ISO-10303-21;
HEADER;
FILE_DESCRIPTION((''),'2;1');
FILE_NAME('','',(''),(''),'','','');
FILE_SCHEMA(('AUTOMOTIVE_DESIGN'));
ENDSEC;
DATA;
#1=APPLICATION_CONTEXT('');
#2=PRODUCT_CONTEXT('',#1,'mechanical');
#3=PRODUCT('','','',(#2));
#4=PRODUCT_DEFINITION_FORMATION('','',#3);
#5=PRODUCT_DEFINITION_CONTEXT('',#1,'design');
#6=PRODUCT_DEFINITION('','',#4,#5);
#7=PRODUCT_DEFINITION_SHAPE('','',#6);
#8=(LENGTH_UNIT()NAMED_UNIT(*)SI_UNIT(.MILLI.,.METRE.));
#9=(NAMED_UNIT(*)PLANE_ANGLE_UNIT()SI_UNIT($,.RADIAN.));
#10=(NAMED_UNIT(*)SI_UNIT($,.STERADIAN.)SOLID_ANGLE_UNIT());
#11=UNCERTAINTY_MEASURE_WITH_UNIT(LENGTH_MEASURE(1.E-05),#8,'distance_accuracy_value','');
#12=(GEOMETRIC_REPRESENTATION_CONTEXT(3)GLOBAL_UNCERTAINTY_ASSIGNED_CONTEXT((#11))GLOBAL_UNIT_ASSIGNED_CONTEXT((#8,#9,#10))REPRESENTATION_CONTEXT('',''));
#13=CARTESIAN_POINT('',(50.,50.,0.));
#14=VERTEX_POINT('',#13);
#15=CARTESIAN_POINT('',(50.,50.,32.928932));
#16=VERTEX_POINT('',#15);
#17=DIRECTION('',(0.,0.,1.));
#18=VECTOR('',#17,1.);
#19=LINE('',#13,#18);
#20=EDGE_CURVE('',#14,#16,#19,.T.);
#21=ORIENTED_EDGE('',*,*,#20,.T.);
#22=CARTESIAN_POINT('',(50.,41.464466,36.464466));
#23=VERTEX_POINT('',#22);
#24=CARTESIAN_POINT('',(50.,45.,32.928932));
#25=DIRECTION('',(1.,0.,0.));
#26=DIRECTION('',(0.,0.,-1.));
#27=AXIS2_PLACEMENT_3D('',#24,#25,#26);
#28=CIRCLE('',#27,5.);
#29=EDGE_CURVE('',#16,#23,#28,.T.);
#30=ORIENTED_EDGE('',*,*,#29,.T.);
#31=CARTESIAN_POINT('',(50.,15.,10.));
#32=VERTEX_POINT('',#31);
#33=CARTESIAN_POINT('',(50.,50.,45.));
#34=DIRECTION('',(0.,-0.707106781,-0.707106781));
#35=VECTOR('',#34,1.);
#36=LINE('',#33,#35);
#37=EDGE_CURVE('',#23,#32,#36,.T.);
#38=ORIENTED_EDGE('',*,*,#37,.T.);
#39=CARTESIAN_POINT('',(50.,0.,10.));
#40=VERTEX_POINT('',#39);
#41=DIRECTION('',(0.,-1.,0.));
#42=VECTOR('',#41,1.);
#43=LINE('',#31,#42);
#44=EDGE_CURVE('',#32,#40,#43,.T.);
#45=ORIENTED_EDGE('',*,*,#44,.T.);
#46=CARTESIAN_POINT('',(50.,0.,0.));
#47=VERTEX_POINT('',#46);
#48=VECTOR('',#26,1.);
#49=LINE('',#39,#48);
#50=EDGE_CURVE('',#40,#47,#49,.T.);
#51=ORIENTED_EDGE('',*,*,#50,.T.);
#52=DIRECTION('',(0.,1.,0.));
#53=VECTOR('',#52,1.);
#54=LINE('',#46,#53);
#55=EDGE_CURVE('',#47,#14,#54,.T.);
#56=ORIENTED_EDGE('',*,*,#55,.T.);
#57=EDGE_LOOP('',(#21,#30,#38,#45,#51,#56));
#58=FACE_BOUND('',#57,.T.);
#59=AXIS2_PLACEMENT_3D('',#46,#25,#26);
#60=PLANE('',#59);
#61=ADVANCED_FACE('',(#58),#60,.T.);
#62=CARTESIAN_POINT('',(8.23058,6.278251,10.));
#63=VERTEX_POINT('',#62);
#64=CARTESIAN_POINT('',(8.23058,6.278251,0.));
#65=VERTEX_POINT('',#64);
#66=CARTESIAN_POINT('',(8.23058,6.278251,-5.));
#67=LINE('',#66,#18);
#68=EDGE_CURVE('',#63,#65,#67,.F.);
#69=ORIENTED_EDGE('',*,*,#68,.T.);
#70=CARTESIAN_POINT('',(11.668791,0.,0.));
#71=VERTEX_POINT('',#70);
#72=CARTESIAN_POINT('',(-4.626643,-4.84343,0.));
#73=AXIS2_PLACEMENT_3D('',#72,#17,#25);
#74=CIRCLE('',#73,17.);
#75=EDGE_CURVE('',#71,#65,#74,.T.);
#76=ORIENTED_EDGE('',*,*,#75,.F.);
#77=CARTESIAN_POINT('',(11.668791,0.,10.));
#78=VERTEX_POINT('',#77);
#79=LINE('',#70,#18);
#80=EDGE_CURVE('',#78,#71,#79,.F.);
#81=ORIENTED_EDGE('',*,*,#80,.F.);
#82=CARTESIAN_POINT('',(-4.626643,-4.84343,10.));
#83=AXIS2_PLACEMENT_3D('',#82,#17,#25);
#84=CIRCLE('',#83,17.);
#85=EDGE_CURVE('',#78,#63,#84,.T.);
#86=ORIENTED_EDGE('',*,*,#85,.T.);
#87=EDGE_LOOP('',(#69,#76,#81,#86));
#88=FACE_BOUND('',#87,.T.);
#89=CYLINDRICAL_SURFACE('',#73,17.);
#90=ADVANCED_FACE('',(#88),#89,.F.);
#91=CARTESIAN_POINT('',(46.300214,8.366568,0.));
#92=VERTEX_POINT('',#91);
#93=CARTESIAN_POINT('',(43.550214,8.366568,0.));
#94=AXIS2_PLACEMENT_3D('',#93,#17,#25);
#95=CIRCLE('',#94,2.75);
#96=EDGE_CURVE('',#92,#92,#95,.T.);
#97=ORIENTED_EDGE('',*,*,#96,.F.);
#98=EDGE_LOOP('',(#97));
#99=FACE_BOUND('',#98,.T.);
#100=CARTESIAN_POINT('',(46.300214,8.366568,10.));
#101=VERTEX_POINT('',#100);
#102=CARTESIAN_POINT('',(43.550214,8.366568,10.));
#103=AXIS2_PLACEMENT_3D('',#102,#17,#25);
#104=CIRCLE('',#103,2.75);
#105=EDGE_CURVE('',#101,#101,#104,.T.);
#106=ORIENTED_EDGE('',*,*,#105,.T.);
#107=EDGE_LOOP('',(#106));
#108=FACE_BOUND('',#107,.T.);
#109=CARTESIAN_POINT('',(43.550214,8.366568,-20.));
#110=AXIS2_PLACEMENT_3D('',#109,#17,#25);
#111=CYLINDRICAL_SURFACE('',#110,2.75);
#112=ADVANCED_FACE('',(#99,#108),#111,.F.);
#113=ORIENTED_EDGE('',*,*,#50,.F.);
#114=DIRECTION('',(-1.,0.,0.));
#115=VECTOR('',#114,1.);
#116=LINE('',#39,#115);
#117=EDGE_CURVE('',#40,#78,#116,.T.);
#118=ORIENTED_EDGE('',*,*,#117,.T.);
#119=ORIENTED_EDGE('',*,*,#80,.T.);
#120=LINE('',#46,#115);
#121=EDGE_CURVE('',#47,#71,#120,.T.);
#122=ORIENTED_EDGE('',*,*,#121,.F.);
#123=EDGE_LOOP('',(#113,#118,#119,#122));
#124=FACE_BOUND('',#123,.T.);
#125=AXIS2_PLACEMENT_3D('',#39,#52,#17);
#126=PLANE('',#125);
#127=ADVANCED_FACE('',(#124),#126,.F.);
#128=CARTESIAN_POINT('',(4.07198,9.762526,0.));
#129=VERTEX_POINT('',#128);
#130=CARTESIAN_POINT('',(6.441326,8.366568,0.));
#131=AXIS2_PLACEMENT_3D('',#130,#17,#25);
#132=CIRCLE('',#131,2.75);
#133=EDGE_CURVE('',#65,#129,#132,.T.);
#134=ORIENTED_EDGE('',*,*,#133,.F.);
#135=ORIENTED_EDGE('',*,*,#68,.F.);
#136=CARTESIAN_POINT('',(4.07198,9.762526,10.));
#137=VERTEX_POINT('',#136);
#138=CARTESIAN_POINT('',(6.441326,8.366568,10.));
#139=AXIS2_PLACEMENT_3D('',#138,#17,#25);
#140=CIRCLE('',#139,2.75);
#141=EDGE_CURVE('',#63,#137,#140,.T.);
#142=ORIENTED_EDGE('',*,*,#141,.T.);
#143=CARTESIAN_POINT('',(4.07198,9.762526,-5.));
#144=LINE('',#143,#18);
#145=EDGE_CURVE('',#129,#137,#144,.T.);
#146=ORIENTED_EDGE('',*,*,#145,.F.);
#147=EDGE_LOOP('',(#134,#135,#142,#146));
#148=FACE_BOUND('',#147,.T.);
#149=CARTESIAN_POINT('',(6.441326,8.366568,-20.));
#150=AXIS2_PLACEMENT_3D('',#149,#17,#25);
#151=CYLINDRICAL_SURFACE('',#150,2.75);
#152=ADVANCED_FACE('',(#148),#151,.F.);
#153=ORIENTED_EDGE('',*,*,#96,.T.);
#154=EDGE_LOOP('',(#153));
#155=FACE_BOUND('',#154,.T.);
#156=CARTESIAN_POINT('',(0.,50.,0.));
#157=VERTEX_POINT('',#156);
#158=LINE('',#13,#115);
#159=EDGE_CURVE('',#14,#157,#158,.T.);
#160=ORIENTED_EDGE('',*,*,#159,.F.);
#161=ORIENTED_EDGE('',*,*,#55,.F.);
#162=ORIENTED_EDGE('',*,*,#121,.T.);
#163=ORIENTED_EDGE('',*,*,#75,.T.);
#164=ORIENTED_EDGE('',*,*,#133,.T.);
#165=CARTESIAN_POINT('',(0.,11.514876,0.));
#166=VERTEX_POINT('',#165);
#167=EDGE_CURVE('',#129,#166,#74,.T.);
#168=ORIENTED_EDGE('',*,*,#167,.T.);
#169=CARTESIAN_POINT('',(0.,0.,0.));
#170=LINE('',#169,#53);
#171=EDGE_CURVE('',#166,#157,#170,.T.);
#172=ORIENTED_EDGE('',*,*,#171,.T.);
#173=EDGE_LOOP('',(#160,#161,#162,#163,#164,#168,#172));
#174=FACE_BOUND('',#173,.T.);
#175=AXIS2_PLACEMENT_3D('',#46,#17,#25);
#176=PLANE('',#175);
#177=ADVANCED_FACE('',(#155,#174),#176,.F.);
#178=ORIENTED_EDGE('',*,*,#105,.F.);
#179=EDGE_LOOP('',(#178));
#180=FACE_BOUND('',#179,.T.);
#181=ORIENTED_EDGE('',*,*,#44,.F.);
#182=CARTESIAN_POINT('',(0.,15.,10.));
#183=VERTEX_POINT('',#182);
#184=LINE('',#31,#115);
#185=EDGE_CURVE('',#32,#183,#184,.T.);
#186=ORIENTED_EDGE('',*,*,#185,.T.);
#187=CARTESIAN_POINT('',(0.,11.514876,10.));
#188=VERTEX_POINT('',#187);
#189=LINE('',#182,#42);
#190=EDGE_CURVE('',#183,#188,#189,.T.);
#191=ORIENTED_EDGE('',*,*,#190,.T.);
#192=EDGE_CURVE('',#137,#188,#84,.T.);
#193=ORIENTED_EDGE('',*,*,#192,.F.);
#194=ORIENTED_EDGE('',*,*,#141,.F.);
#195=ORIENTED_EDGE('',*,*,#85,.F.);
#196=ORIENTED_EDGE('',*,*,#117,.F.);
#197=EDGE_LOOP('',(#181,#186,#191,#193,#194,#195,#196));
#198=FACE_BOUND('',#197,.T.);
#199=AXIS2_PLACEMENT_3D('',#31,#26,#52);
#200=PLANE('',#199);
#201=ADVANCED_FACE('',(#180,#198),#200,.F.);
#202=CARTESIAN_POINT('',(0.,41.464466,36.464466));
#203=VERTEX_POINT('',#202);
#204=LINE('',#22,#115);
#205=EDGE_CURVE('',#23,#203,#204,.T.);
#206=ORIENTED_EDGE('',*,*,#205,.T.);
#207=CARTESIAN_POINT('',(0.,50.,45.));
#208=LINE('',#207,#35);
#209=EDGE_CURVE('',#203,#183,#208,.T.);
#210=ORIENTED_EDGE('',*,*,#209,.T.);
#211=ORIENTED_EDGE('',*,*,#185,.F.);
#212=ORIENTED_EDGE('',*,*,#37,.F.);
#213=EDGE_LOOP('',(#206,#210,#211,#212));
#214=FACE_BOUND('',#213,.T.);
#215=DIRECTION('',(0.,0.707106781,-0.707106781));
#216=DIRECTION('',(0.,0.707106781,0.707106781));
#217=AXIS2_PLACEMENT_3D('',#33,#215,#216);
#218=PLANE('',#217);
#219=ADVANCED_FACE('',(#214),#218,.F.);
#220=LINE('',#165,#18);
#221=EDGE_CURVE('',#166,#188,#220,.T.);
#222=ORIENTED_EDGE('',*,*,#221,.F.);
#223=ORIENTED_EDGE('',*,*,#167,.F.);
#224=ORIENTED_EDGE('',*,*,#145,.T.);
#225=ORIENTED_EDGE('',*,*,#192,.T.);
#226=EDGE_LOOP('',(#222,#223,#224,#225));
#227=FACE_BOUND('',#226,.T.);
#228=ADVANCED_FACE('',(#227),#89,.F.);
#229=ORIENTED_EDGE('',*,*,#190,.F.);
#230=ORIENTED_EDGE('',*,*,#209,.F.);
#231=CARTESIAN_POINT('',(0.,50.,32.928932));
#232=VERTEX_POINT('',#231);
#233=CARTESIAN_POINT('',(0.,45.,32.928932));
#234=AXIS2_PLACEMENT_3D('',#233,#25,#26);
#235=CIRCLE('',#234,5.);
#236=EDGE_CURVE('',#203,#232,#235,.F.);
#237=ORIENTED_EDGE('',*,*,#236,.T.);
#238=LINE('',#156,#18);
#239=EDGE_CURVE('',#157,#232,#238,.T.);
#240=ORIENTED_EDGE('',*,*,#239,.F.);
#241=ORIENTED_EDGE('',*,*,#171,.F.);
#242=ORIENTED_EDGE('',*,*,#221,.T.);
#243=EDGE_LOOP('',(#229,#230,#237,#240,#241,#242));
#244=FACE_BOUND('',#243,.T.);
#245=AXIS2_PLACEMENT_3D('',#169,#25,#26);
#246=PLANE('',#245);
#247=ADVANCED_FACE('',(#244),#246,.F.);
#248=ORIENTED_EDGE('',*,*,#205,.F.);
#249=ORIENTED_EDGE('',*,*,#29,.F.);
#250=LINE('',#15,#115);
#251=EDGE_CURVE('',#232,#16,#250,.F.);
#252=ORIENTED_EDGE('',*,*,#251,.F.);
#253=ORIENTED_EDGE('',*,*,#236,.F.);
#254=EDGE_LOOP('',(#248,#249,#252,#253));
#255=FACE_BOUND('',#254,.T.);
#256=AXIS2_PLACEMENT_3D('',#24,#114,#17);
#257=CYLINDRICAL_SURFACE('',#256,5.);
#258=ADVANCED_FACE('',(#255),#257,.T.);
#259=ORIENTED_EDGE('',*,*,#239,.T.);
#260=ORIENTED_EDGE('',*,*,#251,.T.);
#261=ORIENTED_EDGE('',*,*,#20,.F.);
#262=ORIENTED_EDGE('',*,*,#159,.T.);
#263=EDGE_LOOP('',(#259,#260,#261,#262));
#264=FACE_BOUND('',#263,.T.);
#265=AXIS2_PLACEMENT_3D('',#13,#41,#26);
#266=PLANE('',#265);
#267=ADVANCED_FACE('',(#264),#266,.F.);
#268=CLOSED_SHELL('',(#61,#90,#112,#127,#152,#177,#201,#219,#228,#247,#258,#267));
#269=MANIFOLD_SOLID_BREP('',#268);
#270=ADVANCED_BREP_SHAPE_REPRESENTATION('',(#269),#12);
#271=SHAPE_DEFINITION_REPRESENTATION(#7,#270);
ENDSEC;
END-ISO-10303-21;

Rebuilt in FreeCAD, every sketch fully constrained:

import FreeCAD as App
import Part
import Sketcher

V = App.Vector
Q = App.Units.Quantity


def edges_at(feature, points):
    """Names of the edges that pass closest to the given points."""
    edges = feature.Shape.Edges
    near = lambda p: min(range(len(edges)), key=lambda i: edges[i].distToShape(Part.Vertex(*p))[0])
    return sorted({f"Edge{near(p) + 1}" for p in points})

doc = App.newDocument("Part")
body = doc.addObject("PartDesign::Body", "Body")

# Sketch on YZ plane
sketch1 = body.newObject("Sketcher::SketchObject", "Sketch")
sketch1.AttachmentSupport = (doc.getObject("YZ_Plane"), [""])
sketch1.MapMode = "FlatFace"
sketch1.addGeometry(Part.LineSegment(V(0, 0, 0), V(50, 0, 0)), False)
sketch1.addGeometry(Part.LineSegment(V(50, 0, 0), V(50, 45, 0)), False)
sketch1.addGeometry(Part.LineSegment(V(50, 45, 0), V(15, 10, 0)), False)
sketch1.addGeometry(Part.LineSegment(V(15, 10, 0), V(0, 10, 0)), False)
sketch1.addGeometry(Part.LineSegment(V(0, 10, 0), V(0, 0, 0)), False)
sketch1.addConstraint(Sketcher.Constraint("Coincident", 0, 2, 1, 1))
sketch1.addConstraint(Sketcher.Constraint("Coincident", 1, 2, 2, 1))
sketch1.addConstraint(Sketcher.Constraint("Coincident", 2, 2, 3, 1))
sketch1.addConstraint(Sketcher.Constraint("Coincident", 3, 2, 4, 1))
sketch1.addConstraint(Sketcher.Constraint("Coincident", 4, 2, 0, 1))
sketch1.addConstraint(Sketcher.Constraint("Horizontal", 0))
sketch1.addConstraint(Sketcher.Constraint("Vertical", 1))
sketch1.addConstraint(Sketcher.Constraint("Horizontal", 3))
sketch1.addConstraint(Sketcher.Constraint("Vertical", 4))
sketch1.addConstraint(Sketcher.Constraint("Coincident", 4, 2, -1, 1))
sketch1.addConstraint(Sketcher.Constraint("DistanceX", 0, 1, 0, 2, Q("50 mm")))
sketch1.addConstraint(Sketcher.Constraint("DistanceX", 3, 2, 3, 1, Q("15 mm")))
sketch1.addConstraint(Sketcher.Constraint("DistanceY", 1, 1, 1, 2, Q("45 mm")))
sketch1.addConstraint(Sketcher.Constraint("DistanceY", 4, 2, 4, 1, Q("10 mm")))
pad1 = body.newObject("PartDesign::Pad", "Pad")
pad1.Profile = sketch1
pad1.Length = 50

# Sketch on XY plane
sketch2 = body.newObject("Sketcher::SketchObject", "Sketch001")
sketch2.AttachmentSupport = (doc.getObject("XY_Plane"), [""])
sketch2.MapMode = "FlatFace"
sketch2.AttachmentOffset = App.Placement(V(0, 0, 10), App.Rotation())
sketch2.addGeometry(Part.Circle(V(-4.626643, -4.84343, 0), V(0, 0, 1), 17), False)
sketch2.addConstraint(Sketcher.Constraint("Diameter", 0, Q("34 mm")))
sketch2.addConstraint(Sketcher.Constraint("DistanceY", 0, 3, -1, 1, Q("4.84343 mm")))
sketch2.addConstraint(Sketcher.Constraint("DistanceX", 0, 3, -1, 1, Q("4.626643 mm")))
pocket1 = body.newObject("PartDesign::Pocket", "Pocket")
pocket1.Profile = sketch2
pocket1.Length = 10

# Sketch on XY plane
sketch3 = body.newObject("Sketcher::SketchObject", "Sketch002")
sketch3.AttachmentSupport = (doc.getObject("XY_Plane"), [""])
sketch3.MapMode = "FlatFace"
sketch3.AttachmentOffset = App.Placement(V(0, 0, 10), App.Rotation())
sketch3.addGeometry(Part.Circle(V(6.441326, 8.366568, 0), V(0, 0, 1), 2.75), False)
sketch3.addGeometry(Part.Circle(V(43.550214, 8.366568, 0), V(0, 0, 1), 2.75), False)
sketch3.addConstraint(Sketcher.Constraint("Equal", 0, 1))
sketch3.addConstraint(Sketcher.Constraint("Horizontal", 0, 3, 1, 3))
sketch3.addConstraint(Sketcher.Constraint("Diameter", 0, Q("5.5 mm")))
sketch3.addConstraint(Sketcher.Constraint("DistanceY", -1, 1, 0, 3, Q("8.366568 mm")))
sketch3.addConstraint(Sketcher.Constraint("DistanceX", 0, 3, 1, 3, Q("37.108888 mm")))
sketch3.addConstraint(Sketcher.Constraint("DistanceX", -1, 1, 0, 3, Q("6.441326 mm")))
pocket2 = body.newObject("PartDesign::Pocket", "Pocket001")
pocket2.Profile = sketch3
pocket2.Length = 30
doc.recompute()

fillet = body.newObject("PartDesign::Fillet", "Fillet")
fillet.Base = (pocket2, edges_at(pocket2, [(25, 50, 45)]))
fillet.Radius = 5

doc.recompute()
